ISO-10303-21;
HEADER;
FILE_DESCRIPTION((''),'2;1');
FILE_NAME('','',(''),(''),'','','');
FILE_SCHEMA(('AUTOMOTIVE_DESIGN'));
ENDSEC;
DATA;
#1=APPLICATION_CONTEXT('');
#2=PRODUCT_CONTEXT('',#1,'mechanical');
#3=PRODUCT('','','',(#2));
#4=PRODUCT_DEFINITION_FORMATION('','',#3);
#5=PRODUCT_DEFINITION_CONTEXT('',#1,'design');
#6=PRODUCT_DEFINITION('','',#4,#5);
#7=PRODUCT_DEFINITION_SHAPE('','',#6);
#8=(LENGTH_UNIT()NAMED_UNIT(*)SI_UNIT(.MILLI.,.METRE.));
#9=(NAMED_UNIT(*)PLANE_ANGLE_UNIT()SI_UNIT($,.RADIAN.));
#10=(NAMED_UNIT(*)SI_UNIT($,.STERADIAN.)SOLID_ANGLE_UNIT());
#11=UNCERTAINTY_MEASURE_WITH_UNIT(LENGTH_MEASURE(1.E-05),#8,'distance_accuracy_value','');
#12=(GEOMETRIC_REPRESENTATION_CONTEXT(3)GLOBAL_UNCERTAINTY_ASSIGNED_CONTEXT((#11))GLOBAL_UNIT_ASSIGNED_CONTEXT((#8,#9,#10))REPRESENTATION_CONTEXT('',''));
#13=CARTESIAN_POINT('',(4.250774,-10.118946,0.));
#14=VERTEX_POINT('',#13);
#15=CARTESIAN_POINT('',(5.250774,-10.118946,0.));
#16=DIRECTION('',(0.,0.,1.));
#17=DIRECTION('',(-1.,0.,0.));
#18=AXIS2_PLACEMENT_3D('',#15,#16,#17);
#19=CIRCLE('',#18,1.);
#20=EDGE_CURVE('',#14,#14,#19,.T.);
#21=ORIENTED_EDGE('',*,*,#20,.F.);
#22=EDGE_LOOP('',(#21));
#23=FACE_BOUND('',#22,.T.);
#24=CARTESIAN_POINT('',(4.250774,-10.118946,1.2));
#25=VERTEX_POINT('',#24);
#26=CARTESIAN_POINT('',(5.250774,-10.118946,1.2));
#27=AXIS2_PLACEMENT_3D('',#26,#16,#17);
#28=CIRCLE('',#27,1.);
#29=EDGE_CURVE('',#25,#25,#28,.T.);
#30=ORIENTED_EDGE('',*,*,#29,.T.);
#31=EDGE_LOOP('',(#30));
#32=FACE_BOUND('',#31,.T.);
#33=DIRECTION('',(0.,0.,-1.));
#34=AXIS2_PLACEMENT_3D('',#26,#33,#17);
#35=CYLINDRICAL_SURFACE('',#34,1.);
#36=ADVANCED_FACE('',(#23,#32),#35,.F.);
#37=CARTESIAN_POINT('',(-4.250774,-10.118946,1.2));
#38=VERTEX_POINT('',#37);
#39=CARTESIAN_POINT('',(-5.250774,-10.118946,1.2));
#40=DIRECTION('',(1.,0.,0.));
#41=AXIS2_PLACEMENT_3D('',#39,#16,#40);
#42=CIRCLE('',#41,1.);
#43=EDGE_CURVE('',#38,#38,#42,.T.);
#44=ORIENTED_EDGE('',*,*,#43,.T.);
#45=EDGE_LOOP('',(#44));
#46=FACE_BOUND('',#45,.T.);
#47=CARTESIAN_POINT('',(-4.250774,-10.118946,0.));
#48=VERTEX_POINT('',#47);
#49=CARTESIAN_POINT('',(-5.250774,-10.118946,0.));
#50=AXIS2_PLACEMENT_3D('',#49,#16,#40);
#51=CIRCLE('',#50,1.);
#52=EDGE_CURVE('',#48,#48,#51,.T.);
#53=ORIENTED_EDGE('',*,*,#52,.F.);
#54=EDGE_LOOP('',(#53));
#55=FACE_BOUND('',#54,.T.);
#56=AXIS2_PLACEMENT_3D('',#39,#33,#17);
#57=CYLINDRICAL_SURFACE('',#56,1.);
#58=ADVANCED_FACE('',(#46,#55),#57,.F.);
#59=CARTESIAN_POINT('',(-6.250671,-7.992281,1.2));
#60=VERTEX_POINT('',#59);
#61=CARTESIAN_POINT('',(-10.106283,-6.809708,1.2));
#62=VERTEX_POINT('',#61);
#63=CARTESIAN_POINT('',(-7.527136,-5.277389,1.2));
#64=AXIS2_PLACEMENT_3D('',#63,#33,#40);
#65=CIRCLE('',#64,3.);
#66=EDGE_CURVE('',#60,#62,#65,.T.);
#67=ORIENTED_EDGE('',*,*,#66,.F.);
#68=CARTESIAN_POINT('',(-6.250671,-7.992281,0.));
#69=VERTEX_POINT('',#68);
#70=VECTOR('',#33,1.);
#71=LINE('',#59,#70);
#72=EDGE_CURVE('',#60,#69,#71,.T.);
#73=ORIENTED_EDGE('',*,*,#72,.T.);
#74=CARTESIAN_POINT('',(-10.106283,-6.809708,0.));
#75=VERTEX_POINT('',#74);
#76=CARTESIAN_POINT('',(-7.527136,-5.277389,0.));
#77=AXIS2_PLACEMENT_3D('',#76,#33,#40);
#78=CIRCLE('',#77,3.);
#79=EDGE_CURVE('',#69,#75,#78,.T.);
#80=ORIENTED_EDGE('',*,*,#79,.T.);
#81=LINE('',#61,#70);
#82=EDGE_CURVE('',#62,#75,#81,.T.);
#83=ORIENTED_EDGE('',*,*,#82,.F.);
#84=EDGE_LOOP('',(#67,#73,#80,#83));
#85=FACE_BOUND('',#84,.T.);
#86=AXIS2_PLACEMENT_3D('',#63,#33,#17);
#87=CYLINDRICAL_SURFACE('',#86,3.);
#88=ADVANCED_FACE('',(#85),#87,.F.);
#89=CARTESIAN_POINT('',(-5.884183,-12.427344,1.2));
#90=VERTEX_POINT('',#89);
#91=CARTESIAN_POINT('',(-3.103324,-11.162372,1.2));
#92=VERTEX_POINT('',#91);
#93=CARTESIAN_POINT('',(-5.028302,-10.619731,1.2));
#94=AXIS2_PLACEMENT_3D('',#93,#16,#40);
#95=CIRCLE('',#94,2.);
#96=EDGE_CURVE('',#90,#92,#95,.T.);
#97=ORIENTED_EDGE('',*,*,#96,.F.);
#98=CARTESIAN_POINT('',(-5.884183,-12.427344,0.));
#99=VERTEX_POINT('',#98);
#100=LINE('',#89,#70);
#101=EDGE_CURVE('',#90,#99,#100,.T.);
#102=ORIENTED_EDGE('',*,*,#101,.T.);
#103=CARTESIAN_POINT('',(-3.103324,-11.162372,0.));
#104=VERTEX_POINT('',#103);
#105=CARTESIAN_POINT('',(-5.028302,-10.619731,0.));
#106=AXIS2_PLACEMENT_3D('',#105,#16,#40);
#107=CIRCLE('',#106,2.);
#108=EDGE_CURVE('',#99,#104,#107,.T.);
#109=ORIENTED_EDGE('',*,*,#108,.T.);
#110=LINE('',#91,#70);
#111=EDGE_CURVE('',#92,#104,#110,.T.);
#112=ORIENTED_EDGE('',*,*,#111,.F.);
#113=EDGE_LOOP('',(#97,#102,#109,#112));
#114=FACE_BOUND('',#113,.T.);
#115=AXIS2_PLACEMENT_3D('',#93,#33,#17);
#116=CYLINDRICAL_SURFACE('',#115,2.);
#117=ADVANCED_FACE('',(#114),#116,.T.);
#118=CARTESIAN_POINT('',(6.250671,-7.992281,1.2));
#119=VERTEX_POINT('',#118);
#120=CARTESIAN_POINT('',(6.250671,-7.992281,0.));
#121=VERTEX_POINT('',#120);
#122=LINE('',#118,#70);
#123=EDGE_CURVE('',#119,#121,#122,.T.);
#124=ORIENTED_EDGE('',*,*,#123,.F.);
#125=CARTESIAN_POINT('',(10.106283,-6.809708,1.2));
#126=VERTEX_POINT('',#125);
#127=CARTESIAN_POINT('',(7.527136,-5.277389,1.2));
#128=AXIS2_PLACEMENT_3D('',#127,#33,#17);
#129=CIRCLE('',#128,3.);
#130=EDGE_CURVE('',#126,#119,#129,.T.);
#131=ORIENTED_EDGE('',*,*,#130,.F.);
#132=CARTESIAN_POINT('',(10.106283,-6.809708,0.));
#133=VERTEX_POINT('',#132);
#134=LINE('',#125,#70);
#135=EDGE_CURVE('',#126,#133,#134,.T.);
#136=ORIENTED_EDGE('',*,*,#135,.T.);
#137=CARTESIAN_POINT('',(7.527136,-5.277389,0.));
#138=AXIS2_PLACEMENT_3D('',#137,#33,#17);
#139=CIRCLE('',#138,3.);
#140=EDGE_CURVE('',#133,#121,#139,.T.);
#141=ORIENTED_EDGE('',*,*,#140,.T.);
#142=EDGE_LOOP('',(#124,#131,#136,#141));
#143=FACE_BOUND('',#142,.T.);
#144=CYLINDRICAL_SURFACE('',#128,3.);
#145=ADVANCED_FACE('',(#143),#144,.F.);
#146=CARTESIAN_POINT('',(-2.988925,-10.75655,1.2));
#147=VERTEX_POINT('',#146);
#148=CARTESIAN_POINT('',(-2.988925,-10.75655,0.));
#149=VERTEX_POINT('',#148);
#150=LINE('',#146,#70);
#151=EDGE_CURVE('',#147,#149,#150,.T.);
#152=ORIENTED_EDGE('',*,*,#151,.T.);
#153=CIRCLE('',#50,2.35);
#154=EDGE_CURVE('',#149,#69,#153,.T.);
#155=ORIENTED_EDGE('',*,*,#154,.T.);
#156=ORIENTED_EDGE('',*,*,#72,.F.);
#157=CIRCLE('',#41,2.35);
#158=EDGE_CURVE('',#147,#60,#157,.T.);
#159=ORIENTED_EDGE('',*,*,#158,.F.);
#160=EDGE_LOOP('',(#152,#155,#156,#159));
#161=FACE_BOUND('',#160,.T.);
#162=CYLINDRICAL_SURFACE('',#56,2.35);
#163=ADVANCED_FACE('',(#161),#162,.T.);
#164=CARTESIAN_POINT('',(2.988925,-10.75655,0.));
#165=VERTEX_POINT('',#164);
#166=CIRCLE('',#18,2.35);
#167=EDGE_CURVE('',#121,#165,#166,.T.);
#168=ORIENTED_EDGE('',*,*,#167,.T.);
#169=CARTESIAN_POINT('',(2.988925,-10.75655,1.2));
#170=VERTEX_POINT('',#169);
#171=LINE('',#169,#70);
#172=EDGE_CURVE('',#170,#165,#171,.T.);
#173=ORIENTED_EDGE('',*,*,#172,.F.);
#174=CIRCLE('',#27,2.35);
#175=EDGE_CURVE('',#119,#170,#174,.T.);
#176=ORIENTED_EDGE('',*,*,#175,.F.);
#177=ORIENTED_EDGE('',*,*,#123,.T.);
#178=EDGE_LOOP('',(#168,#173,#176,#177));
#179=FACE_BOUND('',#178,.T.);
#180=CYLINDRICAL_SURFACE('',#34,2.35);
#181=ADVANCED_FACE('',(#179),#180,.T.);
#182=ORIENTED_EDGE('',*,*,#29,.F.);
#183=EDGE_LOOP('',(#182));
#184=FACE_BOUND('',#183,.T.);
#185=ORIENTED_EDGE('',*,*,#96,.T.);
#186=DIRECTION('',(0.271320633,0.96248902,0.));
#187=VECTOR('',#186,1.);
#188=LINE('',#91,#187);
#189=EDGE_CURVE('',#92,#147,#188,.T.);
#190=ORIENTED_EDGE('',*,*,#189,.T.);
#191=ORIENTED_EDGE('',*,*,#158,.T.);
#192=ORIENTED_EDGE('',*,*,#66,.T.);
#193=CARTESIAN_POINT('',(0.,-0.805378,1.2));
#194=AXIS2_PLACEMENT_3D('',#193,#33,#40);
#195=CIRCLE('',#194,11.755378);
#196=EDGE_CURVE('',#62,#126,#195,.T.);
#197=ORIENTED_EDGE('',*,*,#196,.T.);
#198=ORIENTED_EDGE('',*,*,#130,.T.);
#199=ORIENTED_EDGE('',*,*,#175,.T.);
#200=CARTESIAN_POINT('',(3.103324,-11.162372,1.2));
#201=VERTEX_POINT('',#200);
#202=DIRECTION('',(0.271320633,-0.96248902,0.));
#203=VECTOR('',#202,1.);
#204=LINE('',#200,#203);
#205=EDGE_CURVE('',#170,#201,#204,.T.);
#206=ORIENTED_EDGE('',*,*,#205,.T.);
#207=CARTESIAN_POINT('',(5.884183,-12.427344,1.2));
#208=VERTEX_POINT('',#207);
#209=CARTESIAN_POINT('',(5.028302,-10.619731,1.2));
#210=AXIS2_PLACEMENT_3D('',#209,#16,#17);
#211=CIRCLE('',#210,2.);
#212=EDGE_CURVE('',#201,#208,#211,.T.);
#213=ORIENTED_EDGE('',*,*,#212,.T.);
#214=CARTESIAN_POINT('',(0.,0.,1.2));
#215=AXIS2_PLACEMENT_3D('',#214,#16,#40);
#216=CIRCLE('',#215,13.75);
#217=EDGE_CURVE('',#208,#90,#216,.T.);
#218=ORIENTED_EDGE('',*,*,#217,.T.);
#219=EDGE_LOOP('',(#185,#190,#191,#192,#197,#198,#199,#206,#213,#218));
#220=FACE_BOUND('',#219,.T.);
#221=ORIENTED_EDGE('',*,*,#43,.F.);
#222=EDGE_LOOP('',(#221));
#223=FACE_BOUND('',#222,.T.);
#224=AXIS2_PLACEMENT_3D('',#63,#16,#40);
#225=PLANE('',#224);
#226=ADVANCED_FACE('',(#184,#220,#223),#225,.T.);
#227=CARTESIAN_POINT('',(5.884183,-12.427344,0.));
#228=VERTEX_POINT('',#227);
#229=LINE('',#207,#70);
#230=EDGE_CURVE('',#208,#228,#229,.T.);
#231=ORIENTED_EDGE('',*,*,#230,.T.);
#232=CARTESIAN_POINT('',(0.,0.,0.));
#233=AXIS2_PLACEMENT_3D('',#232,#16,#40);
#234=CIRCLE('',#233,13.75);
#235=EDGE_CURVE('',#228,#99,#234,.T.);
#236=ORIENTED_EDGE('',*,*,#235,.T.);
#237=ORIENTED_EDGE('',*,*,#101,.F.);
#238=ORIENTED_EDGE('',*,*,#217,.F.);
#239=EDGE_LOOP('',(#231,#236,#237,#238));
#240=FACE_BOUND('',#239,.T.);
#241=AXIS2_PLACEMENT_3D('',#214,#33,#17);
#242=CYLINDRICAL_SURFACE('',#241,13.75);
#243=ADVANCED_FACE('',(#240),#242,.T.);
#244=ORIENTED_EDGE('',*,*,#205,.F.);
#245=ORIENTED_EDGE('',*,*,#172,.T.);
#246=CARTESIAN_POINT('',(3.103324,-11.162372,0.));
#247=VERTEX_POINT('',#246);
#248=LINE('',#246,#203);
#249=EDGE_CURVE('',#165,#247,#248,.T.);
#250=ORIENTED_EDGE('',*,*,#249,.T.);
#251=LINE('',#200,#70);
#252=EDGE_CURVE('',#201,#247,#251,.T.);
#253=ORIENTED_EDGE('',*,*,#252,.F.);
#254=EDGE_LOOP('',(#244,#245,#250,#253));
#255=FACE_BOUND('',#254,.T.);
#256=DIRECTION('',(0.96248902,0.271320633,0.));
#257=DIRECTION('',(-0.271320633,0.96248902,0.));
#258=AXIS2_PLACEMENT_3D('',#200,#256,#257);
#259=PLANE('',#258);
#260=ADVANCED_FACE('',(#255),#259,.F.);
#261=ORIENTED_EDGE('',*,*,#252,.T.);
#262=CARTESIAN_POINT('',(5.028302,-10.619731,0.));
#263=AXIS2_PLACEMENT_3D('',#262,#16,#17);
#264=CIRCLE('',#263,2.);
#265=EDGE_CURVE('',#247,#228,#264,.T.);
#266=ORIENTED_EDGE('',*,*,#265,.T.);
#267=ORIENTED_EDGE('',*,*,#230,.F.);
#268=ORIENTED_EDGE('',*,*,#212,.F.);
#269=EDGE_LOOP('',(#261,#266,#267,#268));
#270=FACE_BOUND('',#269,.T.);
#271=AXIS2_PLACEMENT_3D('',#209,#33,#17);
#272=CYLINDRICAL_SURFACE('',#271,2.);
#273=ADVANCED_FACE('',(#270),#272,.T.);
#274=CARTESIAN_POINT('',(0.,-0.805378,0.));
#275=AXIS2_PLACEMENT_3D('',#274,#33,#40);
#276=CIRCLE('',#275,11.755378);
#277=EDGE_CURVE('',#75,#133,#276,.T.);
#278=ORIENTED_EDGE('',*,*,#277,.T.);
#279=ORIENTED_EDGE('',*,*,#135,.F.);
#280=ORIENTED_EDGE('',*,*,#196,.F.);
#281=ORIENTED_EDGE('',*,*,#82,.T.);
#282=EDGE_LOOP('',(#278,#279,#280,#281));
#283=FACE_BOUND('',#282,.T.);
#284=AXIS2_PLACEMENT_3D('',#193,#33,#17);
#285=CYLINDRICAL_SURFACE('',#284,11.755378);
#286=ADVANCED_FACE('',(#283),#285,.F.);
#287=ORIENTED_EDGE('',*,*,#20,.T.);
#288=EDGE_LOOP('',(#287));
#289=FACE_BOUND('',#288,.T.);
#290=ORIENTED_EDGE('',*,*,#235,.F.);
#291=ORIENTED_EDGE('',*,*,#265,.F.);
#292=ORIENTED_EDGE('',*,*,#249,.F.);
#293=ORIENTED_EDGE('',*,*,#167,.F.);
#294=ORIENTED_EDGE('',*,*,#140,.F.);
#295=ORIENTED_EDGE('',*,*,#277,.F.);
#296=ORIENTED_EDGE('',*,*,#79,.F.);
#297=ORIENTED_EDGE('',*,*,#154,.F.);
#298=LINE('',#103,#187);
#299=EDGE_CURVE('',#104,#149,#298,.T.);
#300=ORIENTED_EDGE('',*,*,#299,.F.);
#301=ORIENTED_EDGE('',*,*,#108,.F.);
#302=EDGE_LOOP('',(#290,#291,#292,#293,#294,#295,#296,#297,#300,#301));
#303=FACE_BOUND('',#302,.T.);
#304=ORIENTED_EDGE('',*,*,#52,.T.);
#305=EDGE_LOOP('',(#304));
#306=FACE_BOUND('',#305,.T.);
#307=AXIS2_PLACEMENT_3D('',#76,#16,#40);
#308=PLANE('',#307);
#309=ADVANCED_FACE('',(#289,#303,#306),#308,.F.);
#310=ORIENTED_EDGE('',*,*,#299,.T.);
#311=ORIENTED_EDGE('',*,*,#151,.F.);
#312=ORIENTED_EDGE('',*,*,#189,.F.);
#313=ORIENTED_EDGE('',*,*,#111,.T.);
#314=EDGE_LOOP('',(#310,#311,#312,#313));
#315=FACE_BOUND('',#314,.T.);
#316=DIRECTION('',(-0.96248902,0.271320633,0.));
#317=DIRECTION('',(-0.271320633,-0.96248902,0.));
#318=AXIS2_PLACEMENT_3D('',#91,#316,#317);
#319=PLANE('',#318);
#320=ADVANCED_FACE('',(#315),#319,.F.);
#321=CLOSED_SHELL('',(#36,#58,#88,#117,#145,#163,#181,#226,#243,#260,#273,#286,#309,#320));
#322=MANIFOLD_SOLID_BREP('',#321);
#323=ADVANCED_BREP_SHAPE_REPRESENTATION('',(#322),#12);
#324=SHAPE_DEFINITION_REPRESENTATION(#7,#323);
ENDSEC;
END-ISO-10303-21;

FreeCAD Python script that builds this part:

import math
import FreeCAD as App
import Part
import Sketcher

V = App.Vector
Q = App.Units.Quantity

doc = App.newDocument("Part")
body = doc.addObject("PartDesign::Body", "Body")

# Sketch on XY plane
sketch1 = body.newObject("Sketcher::SketchObject", "Sketch")
sketch1.AttachmentSupport = (doc.getObject("XY_Plane"), [""])
sketch1.MapMode = "FlatFace"
sketch1.addGeometry([
    Part.LineSegment(V(-3.1, -11.16, 0), V(-2.99, -10.76, 0)),  # 0
    Part.ArcOfCircle(Part.Circle(V(-5.25, -10.12, 0), V(0, 0, 1), 2.35), math.radians(-16), math.radians(115)),  # 1
    Part.ArcOfCircle(Part.Circle(V(-7.53, -5.28, 0), V(0, 0, 1), 3), math.radians(-149), math.radians(-65)),  # 2
    Part.ArcOfCircle(Part.Circle(V(0, -0.81, 0), V(0, 0, 1), 11.76), math.radians(-31), math.radians(211)),  # 3
    Part.ArcOfCircle(Part.Circle(V(7.53, -5.28, 0), V(0, 0, 1), 3), math.radians(-115), math.radians(-31)),  # 4
    Part.ArcOfCircle(Part.Circle(V(5.25, -10.12, 0), V(0, 0, 1), 2.35), math.radians(65), math.radians(196)),  # 5
    Part.LineSegment(V(2.99, -10.76, 0), V(3.1, -11.16, 0)),  # 6
    Part.ArcOfCircle(Part.Circle(V(5.03, -10.62, 0), V(0, 0, 1), 2), math.radians(-164), math.radians(-65)),  # 7
    Part.ArcOfCircle(Part.Circle(V(0, 0, 0), V(0, 0, 1), 13.75), math.radians(-65), math.radians(245)),  # 8
    Part.ArcOfCircle(Part.Circle(V(-5.03, -10.62, 0), V(0, 0, 1), 2), math.radians(-115), math.radians(-16)),  # 9
    Part.Circle(V(-5.25, -10.12, 0), V(0, 0, 1), 1),  # 10
    Part.Circle(V(5.25, -10.12, 0), V(0, 0, 1), 1),  # 11
], False)
sketch1.addConstraint([
    Sketcher.Constraint("Tangent", 0, 2, 1, 1),
    Sketcher.Constraint("Tangent", 1, 2, 2, 2),
    Sketcher.Constraint("Tangent", 2, 1, 3, 2),
    Sketcher.Constraint("Tangent", 3, 1, 4, 2),
    Sketcher.Constraint("Tangent", 4, 1, 5, 1),
    Sketcher.Constraint("Tangent", 5, 2, 6, 1),
    Sketcher.Constraint("Tangent", 6, 2, 7, 1),
    Sketcher.Constraint("Tangent", 7, 2, 8, 1),
    Sketcher.Constraint("Tangent", 8, 2, 9, 1),
    Sketcher.Constraint("Tangent", 9, 2, 0, 1),
    Sketcher.Constraint("Coincident", 8, 3, -1, 1),
    Sketcher.Constraint("Coincident", 10, 3, 1, 3),
    Sketcher.Constraint("Coincident", 11, 3, 5, 3),
    Sketcher.Constraint("Equal", 2, 4),
    Sketcher.Constraint("Equal", 1, 5),
    Sketcher.Constraint("Equal", 7, 9),
    Sketcher.Constraint("Equal", 10, 11),
    Sketcher.Constraint("Symmetric", 2, 3, 4, 3, -2),
    Sketcher.Constraint("Symmetric", 0, 2, 5, 2, -2),
    Sketcher.Constraint("Diameter", 10, Q("2 mm")),
    Sketcher.Constraint("Radius", 2, Q("3 mm")),
    Sketcher.Constraint("Radius", 7, Q("2 mm")),
    Sketcher.Constraint("Radius", 1, Q("2.35 mm")),
    Sketcher.Constraint("Radius", 8, Q("13.75 mm")),
    Sketcher.Constraint("Radius", 3, Q("11.755378 mm")),
    Sketcher.Constraint("DistanceX", -1, 1, 7, 3, Q("5.028302 mm")),
    Sketcher.Constraint("DistanceX", 5, 2, 6, 2, Q("0.114399 mm")),
    Sketcher.Constraint("DistanceY", 7, 2, 5, 3, Q("2.308398 mm")),
    Sketcher.Constraint("DistanceY", 2, 3, -1, 1, Q("5.277389 mm")),
])
pad1 = body.newObject("PartDesign::Pad", "Pad")
pad1.Profile = sketch1
pad1.Length = 1.2

doc.recompute()
